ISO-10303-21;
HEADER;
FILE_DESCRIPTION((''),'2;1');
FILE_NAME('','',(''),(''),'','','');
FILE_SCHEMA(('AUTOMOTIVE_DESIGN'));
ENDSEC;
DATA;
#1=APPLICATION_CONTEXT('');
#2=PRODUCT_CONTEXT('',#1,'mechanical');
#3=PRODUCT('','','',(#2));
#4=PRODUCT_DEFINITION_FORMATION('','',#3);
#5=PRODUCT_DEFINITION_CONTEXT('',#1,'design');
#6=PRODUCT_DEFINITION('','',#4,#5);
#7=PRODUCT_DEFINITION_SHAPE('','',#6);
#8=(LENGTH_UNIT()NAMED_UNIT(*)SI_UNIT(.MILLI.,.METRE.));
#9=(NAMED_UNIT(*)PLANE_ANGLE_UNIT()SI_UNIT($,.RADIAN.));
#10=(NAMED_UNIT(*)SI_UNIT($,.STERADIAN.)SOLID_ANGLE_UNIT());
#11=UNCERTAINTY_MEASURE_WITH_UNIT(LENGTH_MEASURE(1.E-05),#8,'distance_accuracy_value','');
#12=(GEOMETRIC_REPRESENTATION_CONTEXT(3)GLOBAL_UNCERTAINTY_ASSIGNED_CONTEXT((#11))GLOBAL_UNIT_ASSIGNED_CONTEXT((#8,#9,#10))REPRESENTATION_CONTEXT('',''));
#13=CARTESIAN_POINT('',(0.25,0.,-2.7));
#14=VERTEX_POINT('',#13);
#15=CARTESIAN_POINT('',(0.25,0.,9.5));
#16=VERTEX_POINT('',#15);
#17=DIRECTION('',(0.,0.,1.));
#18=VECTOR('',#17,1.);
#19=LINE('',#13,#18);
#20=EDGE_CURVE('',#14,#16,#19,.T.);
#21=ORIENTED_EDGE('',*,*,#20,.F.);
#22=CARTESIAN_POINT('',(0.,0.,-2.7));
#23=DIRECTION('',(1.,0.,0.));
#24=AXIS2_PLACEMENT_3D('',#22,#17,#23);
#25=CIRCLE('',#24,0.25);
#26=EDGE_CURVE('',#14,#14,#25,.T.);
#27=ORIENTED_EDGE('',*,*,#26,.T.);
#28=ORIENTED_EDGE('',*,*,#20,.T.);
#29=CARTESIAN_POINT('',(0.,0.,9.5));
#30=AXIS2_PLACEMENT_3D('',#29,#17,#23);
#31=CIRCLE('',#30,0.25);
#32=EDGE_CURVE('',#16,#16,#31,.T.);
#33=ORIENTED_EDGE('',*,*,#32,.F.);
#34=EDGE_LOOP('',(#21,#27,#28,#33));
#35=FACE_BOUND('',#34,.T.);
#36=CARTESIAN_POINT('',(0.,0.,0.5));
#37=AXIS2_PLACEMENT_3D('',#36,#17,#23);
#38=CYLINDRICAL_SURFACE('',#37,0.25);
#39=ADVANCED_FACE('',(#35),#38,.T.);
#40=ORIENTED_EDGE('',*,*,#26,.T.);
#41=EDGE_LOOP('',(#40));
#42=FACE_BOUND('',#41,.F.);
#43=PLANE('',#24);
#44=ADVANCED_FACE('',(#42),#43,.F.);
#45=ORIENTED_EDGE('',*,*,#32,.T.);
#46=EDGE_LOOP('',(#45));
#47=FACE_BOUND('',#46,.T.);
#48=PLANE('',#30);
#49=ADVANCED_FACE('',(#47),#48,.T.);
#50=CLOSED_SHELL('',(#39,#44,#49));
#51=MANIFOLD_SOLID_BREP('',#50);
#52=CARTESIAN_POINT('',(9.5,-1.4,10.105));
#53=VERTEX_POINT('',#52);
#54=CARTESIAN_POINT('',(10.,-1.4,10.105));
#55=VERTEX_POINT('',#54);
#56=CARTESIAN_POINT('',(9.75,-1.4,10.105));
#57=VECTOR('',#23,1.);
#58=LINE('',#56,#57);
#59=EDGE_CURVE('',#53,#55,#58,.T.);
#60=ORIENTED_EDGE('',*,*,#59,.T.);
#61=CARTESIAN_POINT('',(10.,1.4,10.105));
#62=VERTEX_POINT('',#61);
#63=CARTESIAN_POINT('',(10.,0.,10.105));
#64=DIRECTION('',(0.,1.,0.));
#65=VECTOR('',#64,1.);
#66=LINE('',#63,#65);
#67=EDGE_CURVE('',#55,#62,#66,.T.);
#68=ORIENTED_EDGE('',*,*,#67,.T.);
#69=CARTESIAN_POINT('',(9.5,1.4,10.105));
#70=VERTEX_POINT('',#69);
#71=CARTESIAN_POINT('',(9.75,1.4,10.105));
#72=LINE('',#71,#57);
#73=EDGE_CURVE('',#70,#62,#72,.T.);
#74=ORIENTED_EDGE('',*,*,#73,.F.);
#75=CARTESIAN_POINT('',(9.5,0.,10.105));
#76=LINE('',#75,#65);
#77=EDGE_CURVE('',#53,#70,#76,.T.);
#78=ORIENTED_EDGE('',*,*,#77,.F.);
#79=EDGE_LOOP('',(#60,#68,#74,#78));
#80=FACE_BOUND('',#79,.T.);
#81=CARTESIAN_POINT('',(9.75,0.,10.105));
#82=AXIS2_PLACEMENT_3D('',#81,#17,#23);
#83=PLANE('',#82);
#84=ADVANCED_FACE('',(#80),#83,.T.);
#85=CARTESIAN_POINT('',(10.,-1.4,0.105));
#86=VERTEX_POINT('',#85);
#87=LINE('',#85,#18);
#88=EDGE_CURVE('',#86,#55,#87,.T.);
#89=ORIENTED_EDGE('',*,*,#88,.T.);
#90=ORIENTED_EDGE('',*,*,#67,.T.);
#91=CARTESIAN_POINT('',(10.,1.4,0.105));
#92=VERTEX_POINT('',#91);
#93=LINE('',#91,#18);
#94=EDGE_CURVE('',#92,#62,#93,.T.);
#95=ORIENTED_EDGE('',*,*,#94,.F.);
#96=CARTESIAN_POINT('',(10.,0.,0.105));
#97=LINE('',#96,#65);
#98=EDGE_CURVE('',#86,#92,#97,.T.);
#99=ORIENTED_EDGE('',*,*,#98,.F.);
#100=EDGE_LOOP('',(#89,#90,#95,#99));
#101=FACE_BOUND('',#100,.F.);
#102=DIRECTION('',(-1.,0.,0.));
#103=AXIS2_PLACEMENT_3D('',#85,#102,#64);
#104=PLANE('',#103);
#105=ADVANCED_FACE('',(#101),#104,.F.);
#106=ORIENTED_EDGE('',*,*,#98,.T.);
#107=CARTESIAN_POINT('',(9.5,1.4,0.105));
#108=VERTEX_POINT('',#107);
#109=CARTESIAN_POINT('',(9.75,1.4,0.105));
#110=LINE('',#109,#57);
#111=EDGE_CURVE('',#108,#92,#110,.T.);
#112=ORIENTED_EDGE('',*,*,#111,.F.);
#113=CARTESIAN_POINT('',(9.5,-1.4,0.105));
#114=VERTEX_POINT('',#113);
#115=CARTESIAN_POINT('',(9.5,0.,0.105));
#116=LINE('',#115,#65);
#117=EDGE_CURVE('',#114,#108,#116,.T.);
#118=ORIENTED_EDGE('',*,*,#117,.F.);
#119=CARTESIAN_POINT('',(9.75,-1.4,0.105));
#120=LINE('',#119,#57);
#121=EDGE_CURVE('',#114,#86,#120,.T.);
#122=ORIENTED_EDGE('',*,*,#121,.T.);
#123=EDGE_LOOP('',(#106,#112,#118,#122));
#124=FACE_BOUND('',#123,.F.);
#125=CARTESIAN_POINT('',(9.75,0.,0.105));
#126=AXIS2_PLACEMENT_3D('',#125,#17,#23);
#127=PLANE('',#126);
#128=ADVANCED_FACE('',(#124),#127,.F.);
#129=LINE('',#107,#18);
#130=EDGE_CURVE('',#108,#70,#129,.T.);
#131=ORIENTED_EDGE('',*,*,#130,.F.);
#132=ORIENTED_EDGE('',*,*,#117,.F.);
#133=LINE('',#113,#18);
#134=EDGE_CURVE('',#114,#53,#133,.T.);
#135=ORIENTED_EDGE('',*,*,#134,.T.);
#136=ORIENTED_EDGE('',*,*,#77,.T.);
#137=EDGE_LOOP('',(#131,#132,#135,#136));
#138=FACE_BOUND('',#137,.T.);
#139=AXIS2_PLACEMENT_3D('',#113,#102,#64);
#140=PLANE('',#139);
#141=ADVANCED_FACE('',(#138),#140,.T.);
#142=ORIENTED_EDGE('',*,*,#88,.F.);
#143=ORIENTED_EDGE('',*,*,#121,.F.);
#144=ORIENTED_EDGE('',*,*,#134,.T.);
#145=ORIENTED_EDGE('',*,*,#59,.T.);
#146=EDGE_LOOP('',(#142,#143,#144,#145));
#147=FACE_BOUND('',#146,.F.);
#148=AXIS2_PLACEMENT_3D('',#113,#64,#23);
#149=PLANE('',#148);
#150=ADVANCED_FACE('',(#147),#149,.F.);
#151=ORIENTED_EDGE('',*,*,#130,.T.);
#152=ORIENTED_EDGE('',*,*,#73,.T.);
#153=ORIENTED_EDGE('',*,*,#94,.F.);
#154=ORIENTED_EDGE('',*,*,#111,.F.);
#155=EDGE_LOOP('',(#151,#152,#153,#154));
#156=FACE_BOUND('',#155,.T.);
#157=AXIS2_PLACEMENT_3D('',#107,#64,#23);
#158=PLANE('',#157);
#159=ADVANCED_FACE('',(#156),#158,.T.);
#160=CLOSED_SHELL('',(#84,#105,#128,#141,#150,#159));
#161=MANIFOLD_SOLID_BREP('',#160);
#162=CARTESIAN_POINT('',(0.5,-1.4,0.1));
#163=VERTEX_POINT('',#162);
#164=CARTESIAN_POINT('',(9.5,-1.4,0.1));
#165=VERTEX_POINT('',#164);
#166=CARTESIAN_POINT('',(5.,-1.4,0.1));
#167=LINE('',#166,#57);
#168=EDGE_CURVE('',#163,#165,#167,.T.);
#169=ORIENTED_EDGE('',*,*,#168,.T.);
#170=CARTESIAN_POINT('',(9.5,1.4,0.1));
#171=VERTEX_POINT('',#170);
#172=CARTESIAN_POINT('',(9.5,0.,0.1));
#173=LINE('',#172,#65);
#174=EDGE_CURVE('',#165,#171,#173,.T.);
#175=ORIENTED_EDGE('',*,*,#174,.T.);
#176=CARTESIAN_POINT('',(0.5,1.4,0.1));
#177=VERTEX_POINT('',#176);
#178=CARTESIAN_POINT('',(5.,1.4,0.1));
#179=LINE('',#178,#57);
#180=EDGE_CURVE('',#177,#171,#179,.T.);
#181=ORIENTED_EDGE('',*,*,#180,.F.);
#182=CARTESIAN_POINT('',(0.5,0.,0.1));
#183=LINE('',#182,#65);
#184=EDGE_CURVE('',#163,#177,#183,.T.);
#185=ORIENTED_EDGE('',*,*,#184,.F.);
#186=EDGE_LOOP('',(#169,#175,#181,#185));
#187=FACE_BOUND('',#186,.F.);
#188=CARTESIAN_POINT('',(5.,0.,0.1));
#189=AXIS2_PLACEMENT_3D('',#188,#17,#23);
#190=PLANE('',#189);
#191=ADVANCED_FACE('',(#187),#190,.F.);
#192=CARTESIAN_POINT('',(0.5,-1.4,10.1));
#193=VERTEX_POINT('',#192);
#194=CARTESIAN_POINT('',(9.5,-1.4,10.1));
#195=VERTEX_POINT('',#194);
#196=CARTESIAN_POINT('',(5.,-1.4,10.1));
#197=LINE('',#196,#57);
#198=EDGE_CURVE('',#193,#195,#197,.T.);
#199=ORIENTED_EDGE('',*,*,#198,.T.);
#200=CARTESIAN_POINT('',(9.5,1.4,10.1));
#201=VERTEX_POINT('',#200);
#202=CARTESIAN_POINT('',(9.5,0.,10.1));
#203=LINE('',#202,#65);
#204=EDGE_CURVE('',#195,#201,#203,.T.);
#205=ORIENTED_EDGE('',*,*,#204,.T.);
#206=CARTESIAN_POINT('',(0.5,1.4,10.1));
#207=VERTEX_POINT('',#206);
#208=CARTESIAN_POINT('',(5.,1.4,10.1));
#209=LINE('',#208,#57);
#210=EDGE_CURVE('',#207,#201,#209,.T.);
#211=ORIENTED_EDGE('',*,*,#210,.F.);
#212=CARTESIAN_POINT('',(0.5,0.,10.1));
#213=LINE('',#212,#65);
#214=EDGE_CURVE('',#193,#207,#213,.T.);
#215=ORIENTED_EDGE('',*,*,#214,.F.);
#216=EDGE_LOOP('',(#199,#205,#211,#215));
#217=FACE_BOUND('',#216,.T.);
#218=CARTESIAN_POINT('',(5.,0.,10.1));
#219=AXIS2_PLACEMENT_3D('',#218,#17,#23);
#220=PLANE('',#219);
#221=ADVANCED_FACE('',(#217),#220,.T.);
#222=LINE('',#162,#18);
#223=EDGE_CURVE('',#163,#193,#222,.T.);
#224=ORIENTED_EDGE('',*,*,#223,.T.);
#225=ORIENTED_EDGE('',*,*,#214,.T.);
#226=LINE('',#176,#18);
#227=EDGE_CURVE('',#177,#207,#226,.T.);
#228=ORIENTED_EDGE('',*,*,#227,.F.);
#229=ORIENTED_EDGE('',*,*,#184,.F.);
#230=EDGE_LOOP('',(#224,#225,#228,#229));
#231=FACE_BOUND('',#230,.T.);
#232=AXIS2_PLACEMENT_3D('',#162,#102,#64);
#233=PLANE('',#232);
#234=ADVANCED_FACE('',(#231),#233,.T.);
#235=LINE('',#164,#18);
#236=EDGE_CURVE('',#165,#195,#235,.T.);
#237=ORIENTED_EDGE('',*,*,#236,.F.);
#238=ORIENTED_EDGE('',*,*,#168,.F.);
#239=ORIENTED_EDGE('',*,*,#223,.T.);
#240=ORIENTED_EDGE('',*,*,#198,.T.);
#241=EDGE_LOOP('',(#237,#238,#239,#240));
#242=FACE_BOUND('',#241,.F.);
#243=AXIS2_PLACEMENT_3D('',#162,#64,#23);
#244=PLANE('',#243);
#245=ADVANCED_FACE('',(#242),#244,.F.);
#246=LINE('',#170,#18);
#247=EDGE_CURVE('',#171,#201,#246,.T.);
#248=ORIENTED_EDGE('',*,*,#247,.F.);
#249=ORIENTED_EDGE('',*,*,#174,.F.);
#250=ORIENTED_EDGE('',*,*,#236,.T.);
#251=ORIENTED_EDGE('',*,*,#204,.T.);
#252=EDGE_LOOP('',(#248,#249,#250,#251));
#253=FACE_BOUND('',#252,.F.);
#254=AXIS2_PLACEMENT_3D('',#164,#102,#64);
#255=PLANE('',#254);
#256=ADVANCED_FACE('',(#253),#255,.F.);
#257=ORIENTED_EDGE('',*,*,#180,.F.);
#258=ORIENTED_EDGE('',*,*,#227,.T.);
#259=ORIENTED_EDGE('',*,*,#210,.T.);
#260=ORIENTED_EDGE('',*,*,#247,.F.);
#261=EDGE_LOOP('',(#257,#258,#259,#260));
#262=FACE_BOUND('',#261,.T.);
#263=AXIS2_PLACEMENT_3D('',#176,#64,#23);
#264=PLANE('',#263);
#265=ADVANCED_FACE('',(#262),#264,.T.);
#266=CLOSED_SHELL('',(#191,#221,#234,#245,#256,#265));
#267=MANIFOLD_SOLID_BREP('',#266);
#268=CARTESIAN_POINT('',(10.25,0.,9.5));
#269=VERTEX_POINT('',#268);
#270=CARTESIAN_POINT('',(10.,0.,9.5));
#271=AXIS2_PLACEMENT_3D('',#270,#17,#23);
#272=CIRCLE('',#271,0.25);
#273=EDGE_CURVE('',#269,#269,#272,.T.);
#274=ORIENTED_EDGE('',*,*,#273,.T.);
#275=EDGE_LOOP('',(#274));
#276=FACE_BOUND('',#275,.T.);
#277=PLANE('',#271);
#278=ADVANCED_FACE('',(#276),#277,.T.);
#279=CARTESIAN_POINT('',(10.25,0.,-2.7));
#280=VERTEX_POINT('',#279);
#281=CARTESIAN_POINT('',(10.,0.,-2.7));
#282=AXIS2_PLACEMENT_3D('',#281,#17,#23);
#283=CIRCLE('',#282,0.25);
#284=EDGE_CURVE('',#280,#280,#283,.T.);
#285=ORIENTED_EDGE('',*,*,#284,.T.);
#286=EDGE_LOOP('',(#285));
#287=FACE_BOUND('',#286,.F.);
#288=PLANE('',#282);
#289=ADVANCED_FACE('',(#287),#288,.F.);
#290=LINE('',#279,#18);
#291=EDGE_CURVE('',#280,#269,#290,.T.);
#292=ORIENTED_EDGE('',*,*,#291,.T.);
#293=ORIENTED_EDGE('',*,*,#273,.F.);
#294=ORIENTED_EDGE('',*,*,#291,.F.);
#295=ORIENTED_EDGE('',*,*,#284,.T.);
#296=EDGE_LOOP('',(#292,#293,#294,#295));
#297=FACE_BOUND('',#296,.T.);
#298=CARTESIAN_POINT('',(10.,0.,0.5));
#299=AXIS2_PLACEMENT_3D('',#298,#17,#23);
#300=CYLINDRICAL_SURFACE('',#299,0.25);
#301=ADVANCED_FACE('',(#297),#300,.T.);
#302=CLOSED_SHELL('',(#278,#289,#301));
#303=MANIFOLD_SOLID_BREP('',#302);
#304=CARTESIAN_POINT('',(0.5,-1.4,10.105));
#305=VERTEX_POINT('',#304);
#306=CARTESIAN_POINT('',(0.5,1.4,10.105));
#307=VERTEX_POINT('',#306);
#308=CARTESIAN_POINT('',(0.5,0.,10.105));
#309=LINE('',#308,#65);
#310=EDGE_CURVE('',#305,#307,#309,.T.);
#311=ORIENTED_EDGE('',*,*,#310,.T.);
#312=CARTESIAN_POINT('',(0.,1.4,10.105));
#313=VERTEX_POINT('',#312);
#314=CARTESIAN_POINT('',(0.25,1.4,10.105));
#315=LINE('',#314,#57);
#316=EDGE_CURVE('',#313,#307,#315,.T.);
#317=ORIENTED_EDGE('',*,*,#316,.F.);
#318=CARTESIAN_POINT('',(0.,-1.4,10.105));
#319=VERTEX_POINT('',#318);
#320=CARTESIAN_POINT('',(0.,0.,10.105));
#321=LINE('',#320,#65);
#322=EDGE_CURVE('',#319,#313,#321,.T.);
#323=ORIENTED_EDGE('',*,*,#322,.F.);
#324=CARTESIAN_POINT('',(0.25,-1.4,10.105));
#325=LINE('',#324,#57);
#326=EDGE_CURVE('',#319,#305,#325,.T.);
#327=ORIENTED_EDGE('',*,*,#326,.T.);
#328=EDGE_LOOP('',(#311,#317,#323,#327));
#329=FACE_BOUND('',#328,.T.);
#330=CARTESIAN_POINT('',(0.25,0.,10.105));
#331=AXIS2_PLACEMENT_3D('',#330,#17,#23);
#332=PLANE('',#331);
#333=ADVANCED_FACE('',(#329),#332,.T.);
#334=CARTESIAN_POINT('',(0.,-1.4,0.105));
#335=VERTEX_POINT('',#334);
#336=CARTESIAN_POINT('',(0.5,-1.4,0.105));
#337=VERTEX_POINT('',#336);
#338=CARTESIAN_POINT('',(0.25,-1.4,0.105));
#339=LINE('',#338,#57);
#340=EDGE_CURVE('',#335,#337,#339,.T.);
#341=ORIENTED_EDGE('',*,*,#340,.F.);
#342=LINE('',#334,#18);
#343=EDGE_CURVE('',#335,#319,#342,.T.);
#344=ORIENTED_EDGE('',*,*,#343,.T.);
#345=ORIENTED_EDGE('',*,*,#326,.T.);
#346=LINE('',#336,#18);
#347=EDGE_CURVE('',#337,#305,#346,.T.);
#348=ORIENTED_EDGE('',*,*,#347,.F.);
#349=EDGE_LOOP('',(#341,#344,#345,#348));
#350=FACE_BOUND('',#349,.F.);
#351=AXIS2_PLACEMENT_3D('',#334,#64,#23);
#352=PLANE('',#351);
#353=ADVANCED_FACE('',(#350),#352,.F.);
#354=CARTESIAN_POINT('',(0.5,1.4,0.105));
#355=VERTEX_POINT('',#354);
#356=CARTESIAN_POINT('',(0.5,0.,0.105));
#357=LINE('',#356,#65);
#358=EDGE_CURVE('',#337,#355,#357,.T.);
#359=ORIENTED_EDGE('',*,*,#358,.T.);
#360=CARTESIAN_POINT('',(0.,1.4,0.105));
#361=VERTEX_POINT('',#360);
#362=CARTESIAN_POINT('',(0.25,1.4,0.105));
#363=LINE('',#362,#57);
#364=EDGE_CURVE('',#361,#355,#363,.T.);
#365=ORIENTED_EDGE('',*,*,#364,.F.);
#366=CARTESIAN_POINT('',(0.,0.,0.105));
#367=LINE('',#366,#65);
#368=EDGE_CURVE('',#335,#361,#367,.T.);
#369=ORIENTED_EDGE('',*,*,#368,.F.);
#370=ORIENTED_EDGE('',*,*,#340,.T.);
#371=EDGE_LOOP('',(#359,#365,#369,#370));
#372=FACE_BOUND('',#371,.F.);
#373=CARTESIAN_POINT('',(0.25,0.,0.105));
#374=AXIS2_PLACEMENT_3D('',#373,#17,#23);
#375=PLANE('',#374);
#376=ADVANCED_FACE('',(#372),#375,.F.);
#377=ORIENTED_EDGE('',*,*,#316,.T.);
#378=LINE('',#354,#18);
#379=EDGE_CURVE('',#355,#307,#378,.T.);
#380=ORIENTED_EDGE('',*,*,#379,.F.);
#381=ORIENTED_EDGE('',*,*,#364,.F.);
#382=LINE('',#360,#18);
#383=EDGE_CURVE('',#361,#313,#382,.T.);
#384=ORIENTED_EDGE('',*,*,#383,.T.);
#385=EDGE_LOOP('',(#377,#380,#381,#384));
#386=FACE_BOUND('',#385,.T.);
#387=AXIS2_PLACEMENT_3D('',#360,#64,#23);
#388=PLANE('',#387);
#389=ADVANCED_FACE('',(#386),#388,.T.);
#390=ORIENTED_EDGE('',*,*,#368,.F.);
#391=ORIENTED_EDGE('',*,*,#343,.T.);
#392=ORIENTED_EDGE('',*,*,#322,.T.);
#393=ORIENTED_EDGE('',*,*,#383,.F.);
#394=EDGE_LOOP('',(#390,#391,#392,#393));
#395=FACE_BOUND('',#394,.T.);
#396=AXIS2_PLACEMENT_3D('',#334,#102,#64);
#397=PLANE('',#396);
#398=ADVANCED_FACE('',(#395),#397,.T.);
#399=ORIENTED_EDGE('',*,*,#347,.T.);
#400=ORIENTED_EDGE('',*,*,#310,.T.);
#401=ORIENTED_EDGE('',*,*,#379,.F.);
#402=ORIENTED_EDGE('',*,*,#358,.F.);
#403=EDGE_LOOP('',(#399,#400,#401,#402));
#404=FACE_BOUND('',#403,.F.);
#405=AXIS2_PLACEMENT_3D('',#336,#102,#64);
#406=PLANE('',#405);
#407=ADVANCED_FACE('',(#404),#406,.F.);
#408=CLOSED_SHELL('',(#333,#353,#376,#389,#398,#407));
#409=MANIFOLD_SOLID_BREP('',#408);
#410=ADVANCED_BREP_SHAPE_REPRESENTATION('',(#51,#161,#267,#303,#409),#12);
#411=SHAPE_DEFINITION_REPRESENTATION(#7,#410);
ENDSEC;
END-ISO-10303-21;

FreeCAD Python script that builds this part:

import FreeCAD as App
import Part
import Sketcher

V = App.Vector


def add_polygon(sketch, points):
    """Adds a closed chain of lines whose ends are joined by coincident constraints."""
    first, n = sketch.GeometryCount, len(points)
    for a, b in zip(points, points[1:] + points[:1]):
        sketch.addGeometry(Part.LineSegment(App.Vector(*a, 0), App.Vector(*b, 0)), False)
    for i in range(n):
        sketch.addConstraint(Sketcher.Constraint("Coincident", first + i, 2, first + (i + 1) % n, 1))

doc = App.newDocument("Part")
body = doc.addObject("PartDesign::Body", "Body")

# Sketch on XY plane
sketch1 = body.newObject("Sketcher::SketchObject", "Sketch")
sketch1.AttachmentSupport = (doc.getObject("XY_Plane"), [""])
sketch1.MapMode = "FlatFace"
sketch1.AttachmentOffset = App.Placement(V(0, 0, 0.1), App.Rotation())
add_polygon(sketch1, [(0.5, 1.4), (0.5, -1.4), (9.5, -1.4), (9.5, 1.4)])  # lines 0-3
sketch1.addConstraint([
    Sketcher.Constraint("Vertical", 0),
    Sketcher.Constraint("Horizontal", 1),
    Sketcher.Constraint("Vertical", 2),
    Sketcher.Constraint("Horizontal", 3),
    Sketcher.Constraint("DistanceX", 1, 1, 1, 2, 9.0),
    Sketcher.Constraint("DistanceY", 0, 2, 0, 1, 2.8),
    Sketcher.Constraint("DistanceX", -1, 1, 0, 2, 0.5),
    Sketcher.Constraint("DistanceY", 0, 2, -1, 1, 1.4),
])
pad1 = body.newObject("PartDesign::Pad", "Pad")
pad1.Profile = sketch1
pad1.Length = 10
body2 = doc.addObject("PartDesign::Body", "Body001")
body2.AllowCompound = True

# Sketch on XY plane
sketch2 = body2.newObject("Sketcher::SketchObject", "Sketch001")
sketch2.AttachmentSupport = (doc.getObject("XY_Plane001"), [""])
sketch2.MapMode = "FlatFace"
sketch2.AttachmentOffset = App.Placement(V(0, 0, 0.5), App.Rotation())
sketch2.addGeometry([
    Part.Circle(V(0, 0, 0), V(0, 0, 1), 0.25),
    Part.Circle(V(10, 0, 0), V(0, 0, 1), 0.25),
], False)
sketch2.addConstraint([
    Sketcher.Constraint("Coincident", 0, 3, -1, 1),
    Sketcher.Constraint("Equal", 0, 1),
    Sketcher.Constraint("PointOnObject", 1, 3, -1),
    Sketcher.Constraint("Diameter", 0, 0.5),
    Sketcher.Constraint("DistanceX", -1, 1, 1, 3, 10.0),
])
pad2 = body2.newObject("PartDesign::Pad", "Pad001")
pad2.Profile = sketch2
pad2.Type = "TwoLengths"
pad2.Length = 9
pad2.Length2 = 3.2
body3 = doc.addObject("PartDesign::Body", "Body002")
body3.AllowCompound = True

# Sketch on XY plane
sketch3 = body3.newObject("Sketcher::SketchObject", "Sketch002")
sketch3.AttachmentSupport = (doc.getObject("XY_Plane002"), [""])
sketch3.MapMode = "FlatFace"
sketch3.AttachmentOffset = App.Placement(V(0, 0, 0.105), App.Rotation())
add_polygon(sketch3, [(0, 1.4), (0, -1.4), (0.5, -1.4), (0.5, 1.4)])  # lines 0-3
add_polygon(sketch3, [(9.5, 1.4), (9.5, -1.4), (10, -1.4), (10, 1.4)])  # lines 4-7
sketch3.addConstraint([
    Sketcher.Constraint("Vertical", 0),
    Sketcher.Constraint("Horizontal", 1),
    Sketcher.Constraint("Vertical", 2),
    Sketcher.Constraint("Horizontal", 3),
    Sketcher.Constraint("Vertical", 4),
    Sketcher.Constraint("Horizontal", 5),
    Sketcher.Constraint("Vertical", 6),
    Sketcher.Constraint("Horizontal", 7),
    Sketcher.Constraint("Symmetric", 0, 2, 3, 2, -1, 1),
    Sketcher.Constraint("Horizontal", 1, 2, 4, 2),
    Sketcher.Constraint("Horizontal", 3, 2, 6, 2),
    Sketcher.Constraint("Equal", 3, 5),
    Sketcher.Constraint("DistanceX", 1, 1, 1, 2, 0.5),
    Sketcher.Constraint("DistanceY", 0, 2, 0, 1, 2.8),
    Sketcher.Constraint("DistanceX", -1, 1, 5, 2, 10.0),
])
pad3 = body3.newObject("PartDesign::Pad", "Pad002")
pad3.Profile = sketch3
pad3.Length = 10

doc.recompute()
